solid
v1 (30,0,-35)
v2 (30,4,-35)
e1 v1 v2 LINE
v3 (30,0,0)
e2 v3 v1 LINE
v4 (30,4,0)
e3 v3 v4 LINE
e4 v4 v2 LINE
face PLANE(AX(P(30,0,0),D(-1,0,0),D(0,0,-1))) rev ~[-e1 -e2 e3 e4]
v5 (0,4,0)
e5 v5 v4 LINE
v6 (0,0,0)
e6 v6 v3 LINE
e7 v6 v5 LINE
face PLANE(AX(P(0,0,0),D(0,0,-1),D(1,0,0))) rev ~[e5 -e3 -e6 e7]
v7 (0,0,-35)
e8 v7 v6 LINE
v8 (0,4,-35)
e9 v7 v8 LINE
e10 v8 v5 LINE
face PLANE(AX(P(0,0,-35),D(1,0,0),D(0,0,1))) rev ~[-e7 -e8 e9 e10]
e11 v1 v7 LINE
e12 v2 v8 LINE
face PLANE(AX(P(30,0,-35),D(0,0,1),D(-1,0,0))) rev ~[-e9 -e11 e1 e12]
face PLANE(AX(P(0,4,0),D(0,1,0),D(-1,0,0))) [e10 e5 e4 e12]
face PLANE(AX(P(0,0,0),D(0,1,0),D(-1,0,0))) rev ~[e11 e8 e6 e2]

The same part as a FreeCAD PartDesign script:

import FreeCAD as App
import Part
import Sketcher
Q = App.Units.Quantity


def add_polygon(sketch, points):
    """Adds a closed chain of lines whose ends are joined by coincident constraints."""
    first, n = sketch.GeometryCount, len(points)
    for a, b in zip(points, points[1:] + points[:1]):
        sketch.addGeometry(Part.LineSegment(App.Vector(*a, 0), App.Vector(*b, 0)), False)
    for i in range(n):
        sketch.addConstraint(Sketcher.Constraint("Coincident", first + i, 2, first + (i + 1) % n, 1))

doc = App.newDocument("Part")
body = doc.addObject("PartDesign::Body", "Body")

# Sketch on XZ plane
sketch1 = body.newObject("Sketcher::SketchObject", "Sketch")
sketch1.AttachmentSupport = (doc.getObject("XZ_Plane"), [""])
sketch1.MapMode = "FlatFace"
add_polygon(sketch1, [(0, -35), (0, 0), (30, 0), (30, -35)])  # lines 0-3
sketch1.addConstraint([
    Sketcher.Constraint("Vertical", 0),
    Sketcher.Constraint("Horizontal", 1),
    Sketcher.Constraint("Vertical", 2),
    Sketcher.Constraint("Horizontal", 3),
    Sketcher.Constraint("Coincident", 0, 2, -1, 1),
    Sketcher.Constraint("DistanceX", 1, 1, 1, 2, Q("30 mm")),
    Sketcher.Constraint("DistanceY", 0, 1, 0, 2, Q("35 mm")),
])
pad1 = body.newObject("PartDesign::Pad", "Pad")
pad1.Profile = sketch1
pad1.Length = 4
pad1.Reversed = True

doc.recompute()
